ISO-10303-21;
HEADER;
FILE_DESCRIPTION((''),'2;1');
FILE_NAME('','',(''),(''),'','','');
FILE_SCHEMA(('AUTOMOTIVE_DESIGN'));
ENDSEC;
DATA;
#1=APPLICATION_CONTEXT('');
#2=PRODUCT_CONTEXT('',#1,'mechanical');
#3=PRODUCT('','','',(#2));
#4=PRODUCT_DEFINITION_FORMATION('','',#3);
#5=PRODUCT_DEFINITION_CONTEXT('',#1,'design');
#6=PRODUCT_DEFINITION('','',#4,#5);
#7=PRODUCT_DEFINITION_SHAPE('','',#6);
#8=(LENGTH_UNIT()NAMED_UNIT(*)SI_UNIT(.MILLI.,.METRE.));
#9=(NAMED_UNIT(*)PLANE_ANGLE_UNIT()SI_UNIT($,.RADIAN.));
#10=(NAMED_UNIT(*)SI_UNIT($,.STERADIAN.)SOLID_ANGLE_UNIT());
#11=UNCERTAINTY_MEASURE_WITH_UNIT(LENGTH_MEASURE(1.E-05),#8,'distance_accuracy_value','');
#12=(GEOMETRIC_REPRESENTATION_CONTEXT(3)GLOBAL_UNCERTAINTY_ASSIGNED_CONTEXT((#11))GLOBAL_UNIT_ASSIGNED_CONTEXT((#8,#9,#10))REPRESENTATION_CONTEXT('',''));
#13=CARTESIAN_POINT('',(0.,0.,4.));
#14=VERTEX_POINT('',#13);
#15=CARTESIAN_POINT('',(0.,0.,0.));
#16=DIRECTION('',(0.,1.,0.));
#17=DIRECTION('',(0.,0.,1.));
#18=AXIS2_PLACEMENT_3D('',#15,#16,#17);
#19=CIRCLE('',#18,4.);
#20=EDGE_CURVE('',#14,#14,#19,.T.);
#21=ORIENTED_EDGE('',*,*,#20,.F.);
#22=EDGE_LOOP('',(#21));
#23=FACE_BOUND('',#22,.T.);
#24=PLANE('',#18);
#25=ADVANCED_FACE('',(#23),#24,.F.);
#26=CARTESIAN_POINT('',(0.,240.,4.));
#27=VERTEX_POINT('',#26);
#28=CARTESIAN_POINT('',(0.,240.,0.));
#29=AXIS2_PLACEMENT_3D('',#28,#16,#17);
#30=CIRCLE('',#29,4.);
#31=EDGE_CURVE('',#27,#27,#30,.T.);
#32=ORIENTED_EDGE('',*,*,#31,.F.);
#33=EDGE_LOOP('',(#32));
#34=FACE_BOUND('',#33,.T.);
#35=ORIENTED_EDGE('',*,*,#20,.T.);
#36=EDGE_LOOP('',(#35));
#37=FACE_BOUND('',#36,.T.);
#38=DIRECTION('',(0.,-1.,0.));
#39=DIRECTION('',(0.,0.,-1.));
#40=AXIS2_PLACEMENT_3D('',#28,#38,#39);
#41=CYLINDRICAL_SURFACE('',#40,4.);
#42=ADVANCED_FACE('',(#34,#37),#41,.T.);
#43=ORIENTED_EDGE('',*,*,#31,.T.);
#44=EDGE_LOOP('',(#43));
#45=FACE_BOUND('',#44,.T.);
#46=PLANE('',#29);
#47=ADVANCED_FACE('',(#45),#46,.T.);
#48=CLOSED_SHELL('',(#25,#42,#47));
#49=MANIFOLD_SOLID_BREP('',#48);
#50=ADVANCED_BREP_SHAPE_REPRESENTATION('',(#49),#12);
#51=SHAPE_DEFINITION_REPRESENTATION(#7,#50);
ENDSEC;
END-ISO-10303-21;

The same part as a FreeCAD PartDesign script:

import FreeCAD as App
import Part
import Sketcher
Q = App.Units.Quantity

doc = App.newDocument("Part")
body = doc.addObject("PartDesign::Body", "Body")

# Sketch on XZ plane
sketch1 = body.newObject("Sketcher::SketchObject", "Sketch")
sketch1.AttachmentSupport = (doc.getObject("XZ_Plane"), [""])
sketch1.MapMode = "FlatFace"
sketch1.addGeometry(Part.Circle(App.Vector(0, 0, 0), App.Vector(0, 0, 1), 4), False)
sketch1.addConstraint(Sketcher.Constraint("Coincident", 0, 3, -1, 1))
sketch1.addConstraint(Sketcher.Constraint("Diameter", 0, Q("8 mm")))
pad1 = body.newObject("PartDesign::Pad", "Pad")
pad1.Profile = sketch1
pad1.Length = 240
pad1.Reversed = True

doc.recompute()
